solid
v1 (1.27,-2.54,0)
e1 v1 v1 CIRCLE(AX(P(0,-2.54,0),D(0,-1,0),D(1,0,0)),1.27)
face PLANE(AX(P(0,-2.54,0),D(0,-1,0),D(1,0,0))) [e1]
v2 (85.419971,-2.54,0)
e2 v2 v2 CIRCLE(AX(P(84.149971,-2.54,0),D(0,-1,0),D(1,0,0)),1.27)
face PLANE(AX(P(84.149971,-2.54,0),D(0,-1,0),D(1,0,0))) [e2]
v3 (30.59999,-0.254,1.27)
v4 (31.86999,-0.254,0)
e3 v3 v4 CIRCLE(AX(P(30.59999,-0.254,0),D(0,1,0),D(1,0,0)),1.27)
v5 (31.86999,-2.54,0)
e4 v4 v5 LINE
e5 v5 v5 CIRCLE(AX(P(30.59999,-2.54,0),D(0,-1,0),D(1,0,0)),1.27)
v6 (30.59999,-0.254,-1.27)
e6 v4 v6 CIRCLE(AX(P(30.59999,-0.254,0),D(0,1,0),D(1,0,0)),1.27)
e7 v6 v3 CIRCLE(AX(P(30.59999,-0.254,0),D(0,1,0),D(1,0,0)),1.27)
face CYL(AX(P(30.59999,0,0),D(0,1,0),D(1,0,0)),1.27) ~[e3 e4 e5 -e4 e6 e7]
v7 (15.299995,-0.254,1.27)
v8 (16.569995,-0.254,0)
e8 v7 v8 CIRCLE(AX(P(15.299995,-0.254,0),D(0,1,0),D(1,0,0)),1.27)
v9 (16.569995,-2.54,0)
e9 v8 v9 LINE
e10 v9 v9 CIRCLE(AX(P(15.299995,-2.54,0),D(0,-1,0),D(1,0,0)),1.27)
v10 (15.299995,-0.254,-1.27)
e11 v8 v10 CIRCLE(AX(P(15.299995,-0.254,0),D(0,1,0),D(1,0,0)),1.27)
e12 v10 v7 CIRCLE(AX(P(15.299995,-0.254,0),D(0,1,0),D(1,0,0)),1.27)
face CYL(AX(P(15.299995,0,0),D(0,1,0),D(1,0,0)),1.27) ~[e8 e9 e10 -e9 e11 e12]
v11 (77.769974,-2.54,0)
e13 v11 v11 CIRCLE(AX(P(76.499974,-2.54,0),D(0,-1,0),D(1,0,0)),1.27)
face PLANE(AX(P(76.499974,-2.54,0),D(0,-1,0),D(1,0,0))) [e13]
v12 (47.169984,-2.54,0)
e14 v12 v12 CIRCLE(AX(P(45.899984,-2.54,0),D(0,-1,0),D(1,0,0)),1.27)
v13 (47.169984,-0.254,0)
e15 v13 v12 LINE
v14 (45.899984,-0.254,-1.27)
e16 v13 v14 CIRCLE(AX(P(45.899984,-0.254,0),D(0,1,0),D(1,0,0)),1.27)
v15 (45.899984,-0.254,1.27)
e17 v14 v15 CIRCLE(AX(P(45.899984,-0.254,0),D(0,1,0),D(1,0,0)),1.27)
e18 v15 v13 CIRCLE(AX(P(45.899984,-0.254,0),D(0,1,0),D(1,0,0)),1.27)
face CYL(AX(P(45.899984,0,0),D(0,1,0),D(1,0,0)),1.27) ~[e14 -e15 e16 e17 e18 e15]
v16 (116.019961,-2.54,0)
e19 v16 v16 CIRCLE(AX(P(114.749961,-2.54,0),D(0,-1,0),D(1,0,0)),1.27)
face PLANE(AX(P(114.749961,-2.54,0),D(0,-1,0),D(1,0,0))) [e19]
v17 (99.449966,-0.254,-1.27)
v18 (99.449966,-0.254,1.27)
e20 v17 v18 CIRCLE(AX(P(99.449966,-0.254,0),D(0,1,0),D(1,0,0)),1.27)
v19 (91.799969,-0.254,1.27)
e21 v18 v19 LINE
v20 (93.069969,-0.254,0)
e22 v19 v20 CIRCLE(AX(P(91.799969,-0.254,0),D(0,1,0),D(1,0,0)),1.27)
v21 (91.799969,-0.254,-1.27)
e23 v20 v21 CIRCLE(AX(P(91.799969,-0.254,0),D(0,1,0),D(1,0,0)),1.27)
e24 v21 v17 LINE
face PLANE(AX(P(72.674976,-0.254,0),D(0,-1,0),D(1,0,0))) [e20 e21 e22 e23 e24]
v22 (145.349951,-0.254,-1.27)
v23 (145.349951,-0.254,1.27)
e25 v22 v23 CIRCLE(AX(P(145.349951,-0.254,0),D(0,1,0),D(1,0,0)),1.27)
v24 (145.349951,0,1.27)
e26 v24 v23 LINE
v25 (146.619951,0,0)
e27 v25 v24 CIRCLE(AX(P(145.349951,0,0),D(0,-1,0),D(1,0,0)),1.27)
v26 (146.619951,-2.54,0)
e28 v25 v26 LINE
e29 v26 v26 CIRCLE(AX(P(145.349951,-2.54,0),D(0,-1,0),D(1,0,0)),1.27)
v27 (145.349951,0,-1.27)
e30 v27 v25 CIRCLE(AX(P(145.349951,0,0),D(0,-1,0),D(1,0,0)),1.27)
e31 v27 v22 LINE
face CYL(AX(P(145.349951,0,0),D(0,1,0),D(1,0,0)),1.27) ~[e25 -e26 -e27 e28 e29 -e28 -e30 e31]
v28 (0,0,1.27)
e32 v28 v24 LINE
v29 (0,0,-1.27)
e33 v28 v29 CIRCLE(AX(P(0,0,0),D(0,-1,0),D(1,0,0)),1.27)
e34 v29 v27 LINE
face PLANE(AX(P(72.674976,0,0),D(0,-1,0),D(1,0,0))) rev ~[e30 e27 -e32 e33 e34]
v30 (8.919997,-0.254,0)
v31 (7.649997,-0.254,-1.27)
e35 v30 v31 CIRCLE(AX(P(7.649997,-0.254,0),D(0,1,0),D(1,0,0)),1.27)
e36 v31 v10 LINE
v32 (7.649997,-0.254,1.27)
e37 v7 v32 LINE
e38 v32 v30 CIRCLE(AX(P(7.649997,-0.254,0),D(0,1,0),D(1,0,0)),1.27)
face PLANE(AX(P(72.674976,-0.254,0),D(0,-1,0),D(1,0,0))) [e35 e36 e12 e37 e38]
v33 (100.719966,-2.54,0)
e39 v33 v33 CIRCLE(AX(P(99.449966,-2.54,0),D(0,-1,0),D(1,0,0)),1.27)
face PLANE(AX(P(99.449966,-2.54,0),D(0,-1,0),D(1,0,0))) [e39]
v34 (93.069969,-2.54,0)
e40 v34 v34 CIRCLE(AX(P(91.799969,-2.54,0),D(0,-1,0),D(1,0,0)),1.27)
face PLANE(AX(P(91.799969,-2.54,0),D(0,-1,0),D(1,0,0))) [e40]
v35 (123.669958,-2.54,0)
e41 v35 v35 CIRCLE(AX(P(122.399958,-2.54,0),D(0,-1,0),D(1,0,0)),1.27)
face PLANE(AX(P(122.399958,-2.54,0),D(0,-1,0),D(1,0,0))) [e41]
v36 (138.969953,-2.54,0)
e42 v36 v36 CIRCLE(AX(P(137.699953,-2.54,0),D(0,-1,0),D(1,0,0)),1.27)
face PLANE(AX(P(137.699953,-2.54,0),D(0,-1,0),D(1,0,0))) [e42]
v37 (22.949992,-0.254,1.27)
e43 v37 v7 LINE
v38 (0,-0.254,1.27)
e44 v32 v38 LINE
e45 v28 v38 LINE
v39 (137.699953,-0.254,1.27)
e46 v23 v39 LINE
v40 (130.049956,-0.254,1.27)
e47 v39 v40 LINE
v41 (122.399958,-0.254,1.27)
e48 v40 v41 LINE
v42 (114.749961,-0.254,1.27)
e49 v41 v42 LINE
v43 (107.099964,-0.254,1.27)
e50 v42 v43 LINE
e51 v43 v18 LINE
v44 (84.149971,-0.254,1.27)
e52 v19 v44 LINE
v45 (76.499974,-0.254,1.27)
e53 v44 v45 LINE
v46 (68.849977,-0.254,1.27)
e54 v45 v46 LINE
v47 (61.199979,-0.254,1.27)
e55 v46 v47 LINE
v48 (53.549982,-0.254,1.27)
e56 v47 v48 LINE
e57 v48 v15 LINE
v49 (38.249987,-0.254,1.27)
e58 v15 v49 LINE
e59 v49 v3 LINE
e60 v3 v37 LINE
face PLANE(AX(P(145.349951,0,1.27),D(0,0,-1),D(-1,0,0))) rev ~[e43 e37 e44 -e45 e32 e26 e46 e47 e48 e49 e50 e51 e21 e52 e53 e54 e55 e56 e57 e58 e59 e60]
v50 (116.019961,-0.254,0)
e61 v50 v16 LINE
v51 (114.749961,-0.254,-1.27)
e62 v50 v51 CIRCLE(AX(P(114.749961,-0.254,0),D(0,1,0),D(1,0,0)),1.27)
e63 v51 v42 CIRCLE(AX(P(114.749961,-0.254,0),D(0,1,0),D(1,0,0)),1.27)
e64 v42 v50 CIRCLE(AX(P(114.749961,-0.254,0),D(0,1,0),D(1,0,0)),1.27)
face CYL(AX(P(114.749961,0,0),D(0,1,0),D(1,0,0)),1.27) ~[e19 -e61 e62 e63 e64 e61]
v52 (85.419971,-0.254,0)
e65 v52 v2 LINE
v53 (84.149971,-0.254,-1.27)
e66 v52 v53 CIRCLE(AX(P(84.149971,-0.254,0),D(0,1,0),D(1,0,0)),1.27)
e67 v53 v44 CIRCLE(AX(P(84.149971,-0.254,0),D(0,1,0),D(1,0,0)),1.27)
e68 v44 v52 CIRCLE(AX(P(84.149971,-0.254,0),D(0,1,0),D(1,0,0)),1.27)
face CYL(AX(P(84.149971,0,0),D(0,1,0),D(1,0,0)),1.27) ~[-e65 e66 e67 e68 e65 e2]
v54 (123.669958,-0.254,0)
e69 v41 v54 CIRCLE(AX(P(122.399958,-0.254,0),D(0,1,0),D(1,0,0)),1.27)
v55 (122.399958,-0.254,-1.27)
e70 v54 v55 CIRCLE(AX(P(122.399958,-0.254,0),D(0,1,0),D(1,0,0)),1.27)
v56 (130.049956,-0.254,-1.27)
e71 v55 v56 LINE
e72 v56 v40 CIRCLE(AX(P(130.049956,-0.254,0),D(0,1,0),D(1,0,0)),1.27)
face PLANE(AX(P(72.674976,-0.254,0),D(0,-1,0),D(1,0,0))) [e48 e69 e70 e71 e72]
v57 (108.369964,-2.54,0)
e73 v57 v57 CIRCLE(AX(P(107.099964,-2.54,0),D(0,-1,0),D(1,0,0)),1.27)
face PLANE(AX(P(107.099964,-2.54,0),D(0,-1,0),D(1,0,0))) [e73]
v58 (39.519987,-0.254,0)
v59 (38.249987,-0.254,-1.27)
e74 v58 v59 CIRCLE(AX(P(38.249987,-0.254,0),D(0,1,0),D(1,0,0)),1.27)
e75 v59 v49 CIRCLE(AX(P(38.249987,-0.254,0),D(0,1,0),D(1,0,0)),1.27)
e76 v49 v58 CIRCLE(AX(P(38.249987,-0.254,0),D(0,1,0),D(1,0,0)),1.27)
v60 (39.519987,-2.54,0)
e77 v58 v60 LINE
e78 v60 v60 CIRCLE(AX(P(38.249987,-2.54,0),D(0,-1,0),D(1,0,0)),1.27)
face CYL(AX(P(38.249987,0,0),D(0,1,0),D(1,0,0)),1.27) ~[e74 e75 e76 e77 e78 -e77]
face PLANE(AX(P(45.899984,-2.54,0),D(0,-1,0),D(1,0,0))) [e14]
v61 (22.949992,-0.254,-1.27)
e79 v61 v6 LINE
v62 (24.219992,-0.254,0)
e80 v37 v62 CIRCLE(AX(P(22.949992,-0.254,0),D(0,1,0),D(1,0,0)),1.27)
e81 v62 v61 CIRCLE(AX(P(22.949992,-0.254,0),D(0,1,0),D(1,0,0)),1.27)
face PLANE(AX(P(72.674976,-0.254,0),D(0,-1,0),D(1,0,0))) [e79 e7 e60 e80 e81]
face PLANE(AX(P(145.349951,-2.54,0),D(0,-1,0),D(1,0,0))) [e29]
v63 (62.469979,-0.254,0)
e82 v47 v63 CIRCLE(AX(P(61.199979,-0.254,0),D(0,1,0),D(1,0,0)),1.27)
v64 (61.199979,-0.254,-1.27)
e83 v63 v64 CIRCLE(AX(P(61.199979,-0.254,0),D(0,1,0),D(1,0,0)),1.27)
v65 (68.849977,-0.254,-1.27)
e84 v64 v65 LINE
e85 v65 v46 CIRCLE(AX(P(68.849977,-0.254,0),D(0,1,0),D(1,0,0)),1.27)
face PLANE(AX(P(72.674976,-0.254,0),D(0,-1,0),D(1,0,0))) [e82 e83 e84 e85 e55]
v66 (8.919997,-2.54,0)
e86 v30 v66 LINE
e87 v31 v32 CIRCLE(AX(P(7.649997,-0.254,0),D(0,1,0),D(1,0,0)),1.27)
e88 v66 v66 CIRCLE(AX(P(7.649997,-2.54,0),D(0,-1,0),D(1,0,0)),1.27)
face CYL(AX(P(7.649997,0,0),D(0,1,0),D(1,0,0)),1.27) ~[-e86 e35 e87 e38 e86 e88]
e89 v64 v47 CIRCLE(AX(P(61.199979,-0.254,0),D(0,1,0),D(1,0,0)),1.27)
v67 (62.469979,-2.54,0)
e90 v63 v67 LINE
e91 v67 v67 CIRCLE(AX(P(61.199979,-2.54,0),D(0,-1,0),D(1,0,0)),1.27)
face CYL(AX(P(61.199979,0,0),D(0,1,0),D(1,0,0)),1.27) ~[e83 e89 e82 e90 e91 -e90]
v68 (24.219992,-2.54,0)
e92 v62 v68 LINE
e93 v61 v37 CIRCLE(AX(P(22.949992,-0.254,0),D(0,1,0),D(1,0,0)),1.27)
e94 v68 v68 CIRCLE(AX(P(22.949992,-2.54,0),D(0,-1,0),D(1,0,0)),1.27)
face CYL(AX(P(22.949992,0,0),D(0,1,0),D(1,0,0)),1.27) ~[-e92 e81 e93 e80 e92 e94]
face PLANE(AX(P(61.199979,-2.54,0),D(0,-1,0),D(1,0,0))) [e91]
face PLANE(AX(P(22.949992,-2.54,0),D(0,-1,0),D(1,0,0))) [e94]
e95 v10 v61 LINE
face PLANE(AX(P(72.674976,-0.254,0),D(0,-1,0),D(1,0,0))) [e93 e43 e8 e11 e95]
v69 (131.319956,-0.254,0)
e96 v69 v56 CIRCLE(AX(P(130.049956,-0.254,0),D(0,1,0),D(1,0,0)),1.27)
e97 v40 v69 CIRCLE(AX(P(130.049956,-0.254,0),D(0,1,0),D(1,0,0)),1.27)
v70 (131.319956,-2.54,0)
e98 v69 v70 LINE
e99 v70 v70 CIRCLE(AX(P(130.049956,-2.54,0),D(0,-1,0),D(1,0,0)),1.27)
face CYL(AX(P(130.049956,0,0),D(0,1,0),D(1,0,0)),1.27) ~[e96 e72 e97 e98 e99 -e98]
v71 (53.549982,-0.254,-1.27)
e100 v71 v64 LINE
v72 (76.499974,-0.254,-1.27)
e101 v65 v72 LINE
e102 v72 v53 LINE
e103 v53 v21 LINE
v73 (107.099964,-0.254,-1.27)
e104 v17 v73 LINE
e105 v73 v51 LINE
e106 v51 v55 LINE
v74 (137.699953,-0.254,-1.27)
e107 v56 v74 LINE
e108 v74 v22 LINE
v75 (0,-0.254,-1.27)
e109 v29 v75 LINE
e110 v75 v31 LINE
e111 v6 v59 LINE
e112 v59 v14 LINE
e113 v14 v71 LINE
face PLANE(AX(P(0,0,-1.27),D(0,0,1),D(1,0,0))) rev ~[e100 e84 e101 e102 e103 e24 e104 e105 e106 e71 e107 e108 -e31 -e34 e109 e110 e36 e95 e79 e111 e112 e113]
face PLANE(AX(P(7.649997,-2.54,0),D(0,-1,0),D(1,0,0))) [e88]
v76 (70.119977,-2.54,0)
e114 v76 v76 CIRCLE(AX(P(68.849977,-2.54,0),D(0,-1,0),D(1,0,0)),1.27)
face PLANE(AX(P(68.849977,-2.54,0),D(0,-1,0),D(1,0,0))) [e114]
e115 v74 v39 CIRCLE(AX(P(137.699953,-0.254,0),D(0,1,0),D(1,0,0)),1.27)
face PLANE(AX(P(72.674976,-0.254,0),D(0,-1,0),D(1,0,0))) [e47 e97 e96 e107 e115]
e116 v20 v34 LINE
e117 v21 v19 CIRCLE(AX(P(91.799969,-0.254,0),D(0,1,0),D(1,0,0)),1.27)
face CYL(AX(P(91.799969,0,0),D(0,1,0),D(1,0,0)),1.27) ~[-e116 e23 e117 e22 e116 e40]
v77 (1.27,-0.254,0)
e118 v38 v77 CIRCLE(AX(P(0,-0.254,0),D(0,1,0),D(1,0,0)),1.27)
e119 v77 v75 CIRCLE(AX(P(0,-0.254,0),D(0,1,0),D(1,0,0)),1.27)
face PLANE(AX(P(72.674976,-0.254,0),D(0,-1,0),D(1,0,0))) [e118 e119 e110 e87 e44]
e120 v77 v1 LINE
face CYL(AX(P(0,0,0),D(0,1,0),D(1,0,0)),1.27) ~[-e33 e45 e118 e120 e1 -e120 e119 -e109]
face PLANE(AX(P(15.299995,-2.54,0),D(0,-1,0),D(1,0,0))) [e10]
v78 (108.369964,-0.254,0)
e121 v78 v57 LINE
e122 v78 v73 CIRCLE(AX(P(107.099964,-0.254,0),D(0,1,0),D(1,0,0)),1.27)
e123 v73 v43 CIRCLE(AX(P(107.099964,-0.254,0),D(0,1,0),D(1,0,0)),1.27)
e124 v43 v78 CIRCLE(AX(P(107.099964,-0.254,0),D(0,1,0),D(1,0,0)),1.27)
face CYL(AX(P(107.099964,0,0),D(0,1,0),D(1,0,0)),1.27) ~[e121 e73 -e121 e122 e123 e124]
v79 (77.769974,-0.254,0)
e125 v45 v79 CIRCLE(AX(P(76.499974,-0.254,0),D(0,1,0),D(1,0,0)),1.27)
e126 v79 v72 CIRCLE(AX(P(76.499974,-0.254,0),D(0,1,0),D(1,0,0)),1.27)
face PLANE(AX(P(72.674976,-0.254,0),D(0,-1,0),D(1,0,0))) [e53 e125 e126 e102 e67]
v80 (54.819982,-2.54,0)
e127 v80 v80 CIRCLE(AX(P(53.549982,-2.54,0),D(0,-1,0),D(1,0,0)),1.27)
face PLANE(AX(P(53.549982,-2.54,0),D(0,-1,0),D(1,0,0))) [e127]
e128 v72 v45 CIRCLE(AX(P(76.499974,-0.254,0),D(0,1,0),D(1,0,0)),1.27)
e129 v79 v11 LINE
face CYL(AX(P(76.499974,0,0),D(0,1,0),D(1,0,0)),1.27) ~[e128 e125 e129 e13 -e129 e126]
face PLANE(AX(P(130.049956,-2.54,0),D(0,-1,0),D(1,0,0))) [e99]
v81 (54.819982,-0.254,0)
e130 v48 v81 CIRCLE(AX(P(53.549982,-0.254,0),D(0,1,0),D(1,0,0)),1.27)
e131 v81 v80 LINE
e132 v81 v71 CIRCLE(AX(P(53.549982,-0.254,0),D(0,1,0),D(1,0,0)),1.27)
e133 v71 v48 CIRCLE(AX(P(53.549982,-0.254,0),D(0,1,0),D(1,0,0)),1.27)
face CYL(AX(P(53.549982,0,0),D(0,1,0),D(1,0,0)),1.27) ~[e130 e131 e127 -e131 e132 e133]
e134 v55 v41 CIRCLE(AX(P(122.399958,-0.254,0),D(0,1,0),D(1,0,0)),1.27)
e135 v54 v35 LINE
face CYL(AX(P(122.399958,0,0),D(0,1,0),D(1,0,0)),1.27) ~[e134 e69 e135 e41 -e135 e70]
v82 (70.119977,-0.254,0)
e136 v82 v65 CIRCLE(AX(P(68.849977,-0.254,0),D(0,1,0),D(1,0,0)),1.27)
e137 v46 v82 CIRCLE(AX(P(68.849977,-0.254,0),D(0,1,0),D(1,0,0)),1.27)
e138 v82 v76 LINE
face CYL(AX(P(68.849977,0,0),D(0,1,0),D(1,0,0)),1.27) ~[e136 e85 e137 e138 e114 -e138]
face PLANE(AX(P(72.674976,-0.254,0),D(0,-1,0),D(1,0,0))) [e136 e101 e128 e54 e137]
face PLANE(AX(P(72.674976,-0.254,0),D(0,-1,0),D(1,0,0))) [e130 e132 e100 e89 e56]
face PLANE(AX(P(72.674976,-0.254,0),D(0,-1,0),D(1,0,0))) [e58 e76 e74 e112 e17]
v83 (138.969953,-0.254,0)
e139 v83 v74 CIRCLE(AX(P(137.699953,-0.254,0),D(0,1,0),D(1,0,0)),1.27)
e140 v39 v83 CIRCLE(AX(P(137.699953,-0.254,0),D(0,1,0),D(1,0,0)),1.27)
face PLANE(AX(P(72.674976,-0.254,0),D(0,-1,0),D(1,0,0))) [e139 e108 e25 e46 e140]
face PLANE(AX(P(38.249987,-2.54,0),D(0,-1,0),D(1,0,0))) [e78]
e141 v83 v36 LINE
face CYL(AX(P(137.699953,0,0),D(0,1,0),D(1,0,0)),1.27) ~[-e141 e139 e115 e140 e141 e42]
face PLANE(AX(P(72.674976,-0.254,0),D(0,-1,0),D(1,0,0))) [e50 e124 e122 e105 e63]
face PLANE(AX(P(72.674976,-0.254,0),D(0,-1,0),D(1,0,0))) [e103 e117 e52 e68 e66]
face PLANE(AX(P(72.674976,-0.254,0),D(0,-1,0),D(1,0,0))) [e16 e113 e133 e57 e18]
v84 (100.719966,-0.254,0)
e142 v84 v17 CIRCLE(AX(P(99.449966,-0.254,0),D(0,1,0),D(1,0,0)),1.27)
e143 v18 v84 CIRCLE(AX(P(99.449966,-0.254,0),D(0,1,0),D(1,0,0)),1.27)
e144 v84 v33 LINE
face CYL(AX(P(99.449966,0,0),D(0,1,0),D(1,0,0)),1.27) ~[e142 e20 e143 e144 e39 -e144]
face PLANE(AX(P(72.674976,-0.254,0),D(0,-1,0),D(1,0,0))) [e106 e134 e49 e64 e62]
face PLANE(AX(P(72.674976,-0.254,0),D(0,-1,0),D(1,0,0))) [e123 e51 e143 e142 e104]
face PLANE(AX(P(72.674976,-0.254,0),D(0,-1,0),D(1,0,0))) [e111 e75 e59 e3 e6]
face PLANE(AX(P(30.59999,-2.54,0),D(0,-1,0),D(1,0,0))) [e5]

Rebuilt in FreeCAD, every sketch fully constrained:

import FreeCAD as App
import Part
import Sketcher
Q = App.Units.Quantity


def add_polygon(sketch, points):
    """Adds a closed chain of lines whose ends are joined by coincident constraints."""
    first, n = sketch.GeometryCount, len(points)
    for a, b in zip(points, points[1:] + points[:1]):
        sketch.addGeometry(Part.LineSegment(App.Vector(*a, 0), App.Vector(*b, 0)), False)
    for i in range(n):
        sketch.addConstraint(Sketcher.Constraint("Coincident", first + i, 2, first + (i + 1) % n, 1))

doc = App.newDocument("Part")
body = doc.addObject("PartDesign::Body", "Body")
body.AllowCompound = True

# Sketch on XZ plane
sketch1 = doc.addObject("Sketcher::SketchObject", "Sketch")
body.addObject(sketch1)
sketch1.AttachmentSupport = (doc.XZ_Plane, [""])
sketch1.MapMode = "FlatFace"
sketch1.addGeometry([
    Part.Circle(App.Vector(0, 0, 0), App.Vector(0, 0, 1), 1.3),  # 0
    Part.Circle(App.Vector(7.6, 0, 0), App.Vector(0, 0, 1), 1.3),  # 1
    Part.Circle(App.Vector(15.3, 0, 0), App.Vector(0, 0, 1), 1.3),  # 2
    Part.Circle(App.Vector(22.9, 0, 0), App.Vector(0, 0, 1), 1.3),  # 3
    Part.Circle(App.Vector(30.6, 0, 0), App.Vector(0, 0, 1), 1.3),  # 4
    Part.Circle(App.Vector(38.2, 0, 0), App.Vector(0, 0, 1), 1.3),  # 5
    Part.Circle(App.Vector(45.9, 0, 0), App.Vector(0, 0, 1), 1.3),  # 6
    Part.Circle(App.Vector(53.5, 0, 0), App.Vector(0, 0, 1), 1.3),  # 7
    Part.Circle(App.Vector(61.2, 0, 0), App.Vector(0, 0, 1), 1.3),  # 8
    Part.Circle(App.Vector(68.8, 0, 0), App.Vector(0, 0, 1), 1.3),  # 9
    Part.Circle(App.Vector(76.5, 0, 0), App.Vector(0, 0, 1), 1.3),  # 10
    Part.Circle(App.Vector(84.1, 0, 0), App.Vector(0, 0, 1), 1.3),  # 11
    Part.Circle(App.Vector(91.8, 0, 0), App.Vector(0, 0, 1), 1.3),  # 12
    Part.Circle(App.Vector(99.4, 0, 0), App.Vector(0, 0, 1), 1.3),  # 13
    Part.Circle(App.Vector(107.1, 0, 0), App.Vector(0, 0, 1), 1.3),  # 14
    Part.Circle(App.Vector(114.7, 0, 0), App.Vector(0, 0, 1), 1.3),  # 15
    Part.Circle(App.Vector(122.4, 0, 0), App.Vector(0, 0, 1), 1.3),  # 16
    Part.Circle(App.Vector(130, 0, 0), App.Vector(0, 0, 1), 1.3),  # 17
    Part.Circle(App.Vector(137.7, 0, 0), App.Vector(0, 0, 1), 1.3),  # 18
    Part.Circle(App.Vector(145.3, 0, 0), App.Vector(0, 0, 1), 1.3),  # 19
], False)
sketch1.addConstraint([
    Sketcher.Constraint("Coincident", 0, 3, -1, 1),
    Sketcher.Constraint("Equal", 0, 1),
    Sketcher.Constraint("Equal", 1, 2),
    Sketcher.Constraint("Equal", 2, 3),
    Sketcher.Constraint("Equal", 3, 4),
    Sketcher.Constraint("Equal", 4, 5),
    Sketcher.Constraint("Equal", 5, 6),
    Sketcher.Constraint("Equal", 6, 7),
    Sketcher.Constraint("Equal", 7, 8),
    Sketcher.Constraint("Equal", 8, 9),
    Sketcher.Constraint("Equal", 9, 10),
    Sketcher.Constraint("Equal", 10, 11),
    Sketcher.Constraint("Equal", 11, 12),
    Sketcher.Constraint("Equal", 12, 13),
    Sketcher.Constraint("Equal", 13, 14),
    Sketcher.Constraint("Equal", 14, 15),
    Sketcher.Constraint("Equal", 15, 16),
    Sketcher.Constraint("Equal", 16, 17),
    Sketcher.Constraint("Equal", 17, 18),
    Sketcher.Constraint("Equal", 18, 19),
    Sketcher.Constraint("PointOnObject", 1, 3, -1),
    Sketcher.Constraint("PointOnObject", 2, 3, -1),
    Sketcher.Constraint("PointOnObject", 3, 3, -1),
    Sketcher.Constraint("PointOnObject", 4, 3, -1),
    Sketcher.Constraint("PointOnObject", 5, 3, -1),
    Sketcher.Constraint("PointOnObject", 6, 3, -1),
    Sketcher.Constraint("PointOnObject", 7, 3, -1),
    Sketcher.Constraint("PointOnObject", 8, 3, -1),
    Sketcher.Constraint("PointOnObject", 9, 3, -1),
    Sketcher.Constraint("PointOnObject", 10, 3, -1),
    Sketcher.Constraint("PointOnObject", 11, 3, -1),
    Sketcher.Constraint("PointOnObject", 12, 3, -1),
    Sketcher.Constraint("PointOnObject", 13, 3, -1),
    Sketcher.Constraint("PointOnObject", 14, 3, -1),
    Sketcher.Constraint("PointOnObject", 15, 3, -1),
    Sketcher.Constraint("PointOnObject", 16, 3, -1),
    Sketcher.Constraint("PointOnObject", 17, 3, -1),
    Sketcher.Constraint("PointOnObject", 18, 3, -1),
    Sketcher.Constraint("PointOnObject", 19, 3, -1),
    Sketcher.Constraint("Diameter", 0, Q("0.1 in")),
    Sketcher.Constraint("DistanceX", 11, 3, 12, 3, Q("7.649998 mm")),
    Sketcher.Constraint("DistanceX", 16, 3, 17, 3, Q("7.649998 mm")),
    Sketcher.Constraint("DistanceX", 18, 3, 19, 3, Q("7.649998 mm")),
    Sketcher.Constraint("DistanceX", -1, 1, 4, 3, Q("30.59999 mm")),
    Sketcher.Constraint("DistanceX", -1, 1, 8, 3, Q("61.199979 mm")),
    Sketcher.Constraint("DistanceX", -1, 1, 11, 3, Q("84.149971 mm")),
    Sketcher.Constraint("DistanceX", -1, 1, 15, 3, Q("114.749961 mm")),
    Sketcher.Constraint("DistanceX", -1, 1, 16, 3, Q("122.399958 mm")),
    Sketcher.Constraint("DistanceX", -1, 1, 19, 3, Q("145.349951 mm")),
    Sketcher.Constraint("DistanceX", 2, 3, 5, 3, Q("22.949992 mm")),
    Sketcher.Constraint("DistanceX", 1, 3, 5, 3, Q("30.59999 mm")),
    Sketcher.Constraint("DistanceX", 2, 3, 6, 3, Q("30.599989 mm")),
    Sketcher.Constraint("DistanceX", 3, 3, 7, 3, Q("30.59999 mm")),
    Sketcher.Constraint("DistanceX", 5, 3, 9, 3, Q("30.59999 mm")),
    Sketcher.Constraint("DistanceX", 7, 3, 10, 3, Q("22.949992 mm")),
    Sketcher.Constraint("DistanceX", 6, 3, 10, 3, Q("30.59999 mm")),
    Sketcher.Constraint("DistanceX", 7, 3, 11, 3, Q("30.599989 mm")),
    Sketcher.Constraint("DistanceX", 9, 3, 13, 3, Q("30.599989 mm")),
    Sketcher.Constraint("DistanceX", 10, 3, 14, 3, Q("30.59999 mm")),
])
pad1 = doc.addObject("PartDesign::Pad", "Pad")
body.addObject(pad1)
pad1.Profile = sketch1
pad1.Length = Q("0.1 in")

# Sketch on XZ plane
sketch2 = doc.addObject("Sketcher::SketchObject", "Sketch001")
body.addObject(sketch2)
sketch2.AttachmentSupport = (doc.XZ_Plane, [""])
sketch2.MapMode = "FlatFace"
add_polygon(sketch2, [(0, -1.3), (145.3, -1.3), (145.3, 1.3), (0, 1.3)])  # lines 0-3
sketch2.addConstraint([
    Sketcher.Constraint("Horizontal", 0),
    Sketcher.Constraint("Vertical", 1),
    Sketcher.Constraint("Horizontal", 2),
    Sketcher.Constraint("Vertical", 3),
    Sketcher.Constraint("Symmetric", 2, 2, 3, 2, -1, 1),
    Sketcher.Constraint("DistanceY", 1, 1, 1, 2, Q("0.1 in")),
    Sketcher.Constraint("DistanceX", 0, 1, 0, 2, Q("145.349951 mm")),
])
pad2 = doc.addObject("PartDesign::Pad", "Pad001")
body.addObject(pad2)
pad2.Profile = sketch2
pad2.Length = Q("0.01 in")

doc.recompute()
